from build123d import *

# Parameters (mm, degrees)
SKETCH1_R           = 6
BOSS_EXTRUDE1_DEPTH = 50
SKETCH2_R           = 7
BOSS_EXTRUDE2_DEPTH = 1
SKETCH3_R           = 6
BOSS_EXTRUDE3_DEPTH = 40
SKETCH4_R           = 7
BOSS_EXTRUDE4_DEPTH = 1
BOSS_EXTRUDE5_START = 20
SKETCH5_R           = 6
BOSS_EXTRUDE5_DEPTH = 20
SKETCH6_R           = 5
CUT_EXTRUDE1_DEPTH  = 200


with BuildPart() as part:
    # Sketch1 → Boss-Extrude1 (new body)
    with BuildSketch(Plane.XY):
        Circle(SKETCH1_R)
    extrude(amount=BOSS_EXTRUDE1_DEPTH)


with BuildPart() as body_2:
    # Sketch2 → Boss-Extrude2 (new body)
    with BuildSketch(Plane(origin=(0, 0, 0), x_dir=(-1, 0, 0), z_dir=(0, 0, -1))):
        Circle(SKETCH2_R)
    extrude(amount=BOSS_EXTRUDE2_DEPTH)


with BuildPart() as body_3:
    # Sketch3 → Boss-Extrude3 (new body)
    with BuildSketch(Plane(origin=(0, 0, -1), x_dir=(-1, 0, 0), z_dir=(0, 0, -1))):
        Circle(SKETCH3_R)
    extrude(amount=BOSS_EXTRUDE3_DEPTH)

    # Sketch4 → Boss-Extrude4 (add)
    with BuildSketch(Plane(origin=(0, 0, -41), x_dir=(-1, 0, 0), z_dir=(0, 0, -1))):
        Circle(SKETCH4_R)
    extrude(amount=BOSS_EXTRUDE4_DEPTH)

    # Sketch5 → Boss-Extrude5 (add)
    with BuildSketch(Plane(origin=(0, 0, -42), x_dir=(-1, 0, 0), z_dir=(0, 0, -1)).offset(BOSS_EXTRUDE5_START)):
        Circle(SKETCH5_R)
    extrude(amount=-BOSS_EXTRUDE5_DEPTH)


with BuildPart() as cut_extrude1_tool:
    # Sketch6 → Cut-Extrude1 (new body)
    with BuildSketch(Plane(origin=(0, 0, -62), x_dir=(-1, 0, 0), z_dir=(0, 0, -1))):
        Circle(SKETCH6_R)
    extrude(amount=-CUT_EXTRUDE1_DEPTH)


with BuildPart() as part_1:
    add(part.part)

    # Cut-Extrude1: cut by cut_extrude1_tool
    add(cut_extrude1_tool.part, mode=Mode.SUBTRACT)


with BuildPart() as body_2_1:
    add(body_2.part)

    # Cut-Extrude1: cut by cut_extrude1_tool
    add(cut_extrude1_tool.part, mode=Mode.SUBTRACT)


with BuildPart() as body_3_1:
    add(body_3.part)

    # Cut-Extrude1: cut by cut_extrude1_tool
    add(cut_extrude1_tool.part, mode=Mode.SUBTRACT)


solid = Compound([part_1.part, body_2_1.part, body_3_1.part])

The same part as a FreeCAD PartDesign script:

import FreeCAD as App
import Part
import Sketcher

doc = App.newDocument("Part")
body = doc.addObject("PartDesign::Body", "Body")

sketch1 = doc.addObject("Sketcher::SketchObject", "Sketch")
body.addObject(sketch1)
sketch1.AttachmentSupport = (doc.XY_Plane, [""])
sketch1.MapMode = "FlatFace"
sketch1.addGeometry(Part.Circle(App.Vector(0, 0, 0), App.Vector(0, 0, 1), 6), False)
sketch1.addConstraint([
    Sketcher.Constraint("Coincident", 0, 3, -1, 1),
    Sketcher.Constraint("Diameter", 0, 12.0),
])
pad1 = doc.addObject("PartDesign::Pad", "Pad")
body.addObject(pad1)
pad1.Profile = sketch1
pad1.Length = 50
body2 = doc.addObject("PartDesign::Body", "Body001")

sketch2 = doc.addObject("Sketcher::SketchObject", "Sketch001")
body2.addObject(sketch2)
sketch2.AttachmentSupport = (doc.getObject("XY_Plane001"), [""])
sketch2.MapMode = "FlatFace"
sketch2.addGeometry(Part.Circle(App.Vector(0, 0, 0), App.Vector(0, 0, 1), 7), False)
sketch2.addConstraint([
    Sketcher.Constraint("Coincident", 0, 3, -1, 1),
    Sketcher.Constraint("Diameter", 0, 14.0),
])
pad2 = doc.addObject("PartDesign::Pad", "Pad001")
body2.addObject(pad2)
pad2.Profile = sketch2
pad2.Length = 1
pad2.Reversed = True
body3 = doc.addObject("PartDesign::Body", "Body002")

sketch3 = doc.addObject("Sketcher::SketchObject", "Sketch002")
body3.addObject(sketch3)
sketch3.AttachmentSupport = (doc.getObject("XY_Plane002"), [""])
sketch3.MapMode = "FlatFace"
sketch3.AttachmentOffset = App.Placement(App.Vector(0, 0, -1), App.Rotation())
sketch3.addGeometry(Part.Circle(App.Vector(0, 0, 0), App.Vector(0, 0, 1), 6), False)
sketch3.addConstraint([
    Sketcher.Constraint("Coincident", 0, 3, -1, 1),
    Sketcher.Constraint("Diameter", 0, 12.0),
])
pad3 = doc.addObject("PartDesign::Pad", "Pad002")
body3.addObject(pad3)
pad3.Profile = sketch3
pad3.Length = 40
pad3.Reversed = True

sketch4 = doc.addObject("Sketcher::SketchObject", "Sketch003")
body3.addObject(sketch4)
sketch4.AttachmentSupport = (doc.getObject("XY_Plane002"), [""])
sketch4.MapMode = "FlatFace"
sketch4.AttachmentOffset = App.Placement(App.Vector(0, 0, -41), App.Rotation())
sketch4.addGeometry(Part.Circle(App.Vector(0, 0, 0), App.Vector(0, 0, 1), 7), False)
sketch4.addConstraint([
    Sketcher.Constraint("Coincident", 0, 3, -1, 1),
    Sketcher.Constraint("Diameter", 0, 14.0),
])
pad4 = doc.addObject("PartDesign::Pad", "Pad003")
body3.addObject(pad4)
pad4.Profile = sketch4
pad4.Length = 1
pad4.Reversed = True

sketch5 = doc.addObject("Sketcher::SketchObject", "Sketch004")
body3.addObject(sketch5)
sketch5.AttachmentSupport = (doc.getObject("XY_Plane002"), [""])
sketch5.MapMode = "FlatFace"
sketch5.AttachmentOffset = App.Placement(App.Vector(0, 0, -62), App.Rotation())
sketch5.addGeometry(Part.Circle(App.Vector(0, 0, 0), App.Vector(0, 0, 1), 6), False)
sketch5.addConstraint([
    Sketcher.Constraint("Coincident", 0, 3, -1, 1),
    Sketcher.Constraint("Diameter", 0, 12.0),
])
pad5 = doc.addObject("PartDesign::Pad", "Pad004")
body3.addObject(pad5)
pad5.Profile = sketch5
pad5.Length = 20
body4 = doc.addObject("PartDesign::Body", "Body003")

sketch6 = doc.addObject("Sketcher::SketchObject", "Sketch005")
body4.addObject(sketch6)
sketch6.AttachmentSupport = (doc.getObject("XY_Plane003"), [""])
sketch6.MapMode = "FlatFace"
sketch6.AttachmentOffset = App.Placement(App.Vector(0, 0, -62), App.Rotation())
sketch6.addGeometry(Part.Circle(App.Vector(0, 0, 0), App.Vector(0, 0, 1), 5), False)
sketch6.addConstraint([
    Sketcher.Constraint("Coincident", 0, 3, -1, 1),
    Sketcher.Constraint("Diameter", 0, 10.0),
])
pad6 = doc.addObject("PartDesign::Pad", "Pad005")
body4.addObject(pad6)
pad6.Profile = sketch6
pad6.Length = 200
doc.recompute()

body5 = doc.addObject("PartDesign::Body", "Body004")
body5.BaseFeature = body4
boolean = doc.addObject("PartDesign::Boolean", "Boolean")
body.addObject(boolean)
boolean.Type = "Cut"
boolean.addObjects([body5])
doc.recompute()

body6 = doc.addObject("PartDesign::Body", "Body005")
body6.BaseFeature = body4
boolean2 = doc.addObject("PartDesign::Boolean", "Boolean001")
body2.addObject(boolean2)
boolean2.Type = "Cut"
boolean2.addObjects([body6])
doc.recompute()

boolean3 = doc.addObject("PartDesign::Boolean", "Boolean002")
body3.addObject(boolean3)
boolean3.Type = "Cut"
boolean3.addObjects([body4])

doc.recompute()
